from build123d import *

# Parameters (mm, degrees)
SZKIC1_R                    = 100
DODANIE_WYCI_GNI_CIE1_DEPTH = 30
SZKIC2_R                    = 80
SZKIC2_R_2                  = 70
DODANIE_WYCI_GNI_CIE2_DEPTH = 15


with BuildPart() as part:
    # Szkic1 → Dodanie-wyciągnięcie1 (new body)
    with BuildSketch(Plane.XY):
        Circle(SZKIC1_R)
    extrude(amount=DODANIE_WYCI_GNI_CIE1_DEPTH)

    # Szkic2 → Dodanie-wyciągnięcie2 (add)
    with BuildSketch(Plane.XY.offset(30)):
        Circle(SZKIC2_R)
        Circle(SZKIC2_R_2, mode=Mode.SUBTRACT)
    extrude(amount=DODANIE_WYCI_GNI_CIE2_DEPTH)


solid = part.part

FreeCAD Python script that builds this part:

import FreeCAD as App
import Part
import Sketcher
Q = App.Units.Quantity

doc = App.newDocument("Part")
body = doc.addObject("PartDesign::Body", "Body")

sketch1 = body.newObject("Sketcher::SketchObject", "Sketch")
sketch1.AttachmentSupport = (doc.getObject("XY_Plane"), [""])
sketch1.MapMode = "FlatFace"
sketch1.addGeometry(Part.Circle(App.Vector(0, 0, 0), App.Vector(0, 0, 1), 100), False)
sketch1.addConstraint([
    Sketcher.Constraint("Coincident", 0, 3, -1, 1),
    Sketcher.Constraint("Diameter", 0, Q("200 mm")),
])
pad1 = body.newObject("PartDesign::Pad", "Pad")
pad1.Profile = sketch1
pad1.Length = 30

sketch2 = body.newObject("Sketcher::SketchObject", "Sketch001")
sketch2.AttachmentSupport = (doc.getObject("XY_Plane"), [""])
sketch2.MapMode = "FlatFace"
sketch2.AttachmentOffset = App.Placement(App.Vector(0, 0, 30), App.Rotation())
sketch2.addGeometry([
    Part.Circle(App.Vector(0, 0, 0), App.Vector(0, 0, 1), 80),
    Part.Circle(App.Vector(0, 0, 0), App.Vector(0, 0, 1), 70),
], False)
sketch2.addConstraint([
    Sketcher.Constraint("Coincident", 0, 3, -1, 1),
    Sketcher.Constraint("Coincident", 1, 3, -1, 1),
    Sketcher.Constraint("Diameter", 0, Q("160 mm")),
    Sketcher.Constraint("Diameter", 1, Q("140 mm")),
])
pad2 = body.newObject("PartDesign::Pad", "Pad001")
pad2.Profile = sketch2
pad2.Length = 15

doc.recompute()
